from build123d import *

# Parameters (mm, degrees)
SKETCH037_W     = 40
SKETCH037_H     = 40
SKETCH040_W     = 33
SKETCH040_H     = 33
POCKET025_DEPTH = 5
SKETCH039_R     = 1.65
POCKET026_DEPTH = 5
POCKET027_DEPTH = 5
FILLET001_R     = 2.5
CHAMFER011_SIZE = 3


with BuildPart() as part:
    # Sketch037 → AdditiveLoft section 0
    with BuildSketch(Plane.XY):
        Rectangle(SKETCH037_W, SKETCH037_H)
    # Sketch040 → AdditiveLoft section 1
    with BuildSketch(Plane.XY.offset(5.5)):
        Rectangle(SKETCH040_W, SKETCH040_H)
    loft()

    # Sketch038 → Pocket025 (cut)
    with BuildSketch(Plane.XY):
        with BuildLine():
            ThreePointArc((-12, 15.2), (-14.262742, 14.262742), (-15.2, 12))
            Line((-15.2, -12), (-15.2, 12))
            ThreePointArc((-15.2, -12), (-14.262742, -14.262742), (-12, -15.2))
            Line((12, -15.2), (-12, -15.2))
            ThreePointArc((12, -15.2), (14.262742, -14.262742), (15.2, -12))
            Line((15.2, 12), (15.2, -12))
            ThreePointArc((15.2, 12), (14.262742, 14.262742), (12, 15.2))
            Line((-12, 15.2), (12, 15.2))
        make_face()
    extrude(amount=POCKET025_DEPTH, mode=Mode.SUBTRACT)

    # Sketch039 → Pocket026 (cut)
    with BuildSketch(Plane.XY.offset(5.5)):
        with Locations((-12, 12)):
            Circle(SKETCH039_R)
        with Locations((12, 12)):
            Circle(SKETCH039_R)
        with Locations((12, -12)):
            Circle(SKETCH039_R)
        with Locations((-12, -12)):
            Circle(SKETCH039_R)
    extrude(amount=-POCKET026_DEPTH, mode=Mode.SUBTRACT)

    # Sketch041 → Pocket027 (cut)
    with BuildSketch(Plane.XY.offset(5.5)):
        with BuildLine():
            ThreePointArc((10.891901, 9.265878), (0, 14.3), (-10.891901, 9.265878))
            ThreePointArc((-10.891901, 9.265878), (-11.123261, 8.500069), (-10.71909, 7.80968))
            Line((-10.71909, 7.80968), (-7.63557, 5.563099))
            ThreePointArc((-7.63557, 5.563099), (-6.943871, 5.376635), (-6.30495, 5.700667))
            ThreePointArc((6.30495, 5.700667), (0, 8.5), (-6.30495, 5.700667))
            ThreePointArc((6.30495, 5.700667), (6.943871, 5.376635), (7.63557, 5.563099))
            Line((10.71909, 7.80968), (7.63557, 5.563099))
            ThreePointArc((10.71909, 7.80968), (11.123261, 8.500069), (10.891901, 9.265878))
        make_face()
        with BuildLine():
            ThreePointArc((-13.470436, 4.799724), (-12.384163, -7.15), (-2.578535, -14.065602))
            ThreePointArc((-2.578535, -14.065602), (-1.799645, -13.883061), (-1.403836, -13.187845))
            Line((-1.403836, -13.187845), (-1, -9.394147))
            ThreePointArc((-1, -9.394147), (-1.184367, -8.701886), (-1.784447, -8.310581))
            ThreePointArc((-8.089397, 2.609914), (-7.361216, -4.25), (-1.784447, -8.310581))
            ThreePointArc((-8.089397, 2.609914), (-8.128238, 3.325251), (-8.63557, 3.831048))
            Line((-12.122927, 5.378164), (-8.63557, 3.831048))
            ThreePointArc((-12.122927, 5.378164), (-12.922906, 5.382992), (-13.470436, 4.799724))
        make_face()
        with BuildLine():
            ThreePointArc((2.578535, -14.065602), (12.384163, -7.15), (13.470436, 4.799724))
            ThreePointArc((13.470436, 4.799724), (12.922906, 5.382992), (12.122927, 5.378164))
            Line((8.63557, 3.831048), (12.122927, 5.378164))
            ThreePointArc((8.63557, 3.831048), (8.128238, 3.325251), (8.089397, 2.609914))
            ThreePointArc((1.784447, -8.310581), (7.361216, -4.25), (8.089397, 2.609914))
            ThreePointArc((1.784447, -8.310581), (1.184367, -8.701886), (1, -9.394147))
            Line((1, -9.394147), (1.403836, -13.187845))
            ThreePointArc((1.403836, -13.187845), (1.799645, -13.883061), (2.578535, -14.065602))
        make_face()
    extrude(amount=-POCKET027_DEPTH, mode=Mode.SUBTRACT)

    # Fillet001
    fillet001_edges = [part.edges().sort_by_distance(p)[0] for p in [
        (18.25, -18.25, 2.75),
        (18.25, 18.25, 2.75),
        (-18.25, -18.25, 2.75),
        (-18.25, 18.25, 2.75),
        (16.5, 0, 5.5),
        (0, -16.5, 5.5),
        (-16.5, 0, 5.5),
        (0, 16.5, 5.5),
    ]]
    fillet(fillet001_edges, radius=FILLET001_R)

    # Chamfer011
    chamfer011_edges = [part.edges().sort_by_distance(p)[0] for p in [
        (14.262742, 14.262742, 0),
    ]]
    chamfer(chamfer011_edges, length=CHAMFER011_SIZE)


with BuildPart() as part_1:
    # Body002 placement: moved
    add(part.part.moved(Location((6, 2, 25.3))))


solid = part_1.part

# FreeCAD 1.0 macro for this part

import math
import FreeCAD as App
import Part
import Sketcher
from FreeCAD import Vector


def edges_at(feature, points):
    """Names of the edges that pass closest to the given points."""
    edges = feature.Shape.Edges
    near = lambda p: min(range(len(edges)), key=lambda i: edges[i].distToShape(Part.Vertex(*p))[0])
    return sorted({f"Edge{near(p) + 1}" for p in points})


def add_polygon(sketch, points):
    """Adds a closed chain of lines whose ends are joined by coincident constraints."""
    first, n = sketch.GeometryCount, len(points)
    for a, b in zip(points, points[1:] + points[:1]):
        sketch.addGeometry(Part.LineSegment(App.Vector(*a, 0), App.Vector(*b, 0)), False)
    for i in range(n):
        sketch.addConstraint(Sketcher.Constraint("Coincident", first + i, 2, first + (i + 1) % n, 1))

doc = App.newDocument("Part")
body = doc.addObject("PartDesign::Body", "Body")

sketch1 = doc.addObject("Sketcher::SketchObject", "Sketch")
body.addObject(sketch1)
sketch1.AttachmentSupport = (doc.XY_Plane, [""])
sketch1.MapMode = "FlatFace"
add_polygon(sketch1, [(-20, 20), (-20, -20), (20, -20), (20, 20)])
sketch1.addConstraint([
    Sketcher.Constraint("Vertical", 0),
    Sketcher.Constraint("Horizontal", 1),
    Sketcher.Constraint("Vertical", 2),
    Sketcher.Constraint("Horizontal", 3),
    Sketcher.Constraint("Symmetric", 0, 2, 2, 2, -1, 1),
    Sketcher.Constraint("Equal", 3, 0),
    Sketcher.Constraint("DistanceX", 1, 1, 1, 2, 40.0),
])

sketch2 = doc.addObject("Sketcher::SketchObject", "Sketch001")
body.addObject(sketch2)
sketch2.AttachmentSupport = (doc.XY_Plane, [""])
sketch2.MapMode = "FlatFace"
sketch2.AttachmentOffset = App.Placement(Vector(0, 0, 5.5), App.Rotation())
add_polygon(sketch2, [(-16, 16), (-16, -16), (16, -16), (16, 16)])
sketch2.addConstraint([
    Sketcher.Constraint("Vertical", 0),
    Sketcher.Constraint("Horizontal", 1),
    Sketcher.Constraint("Vertical", 2),
    Sketcher.Constraint("Horizontal", 3),
    Sketcher.Constraint("Symmetric", 0, 2, 2, 2, -1, 1),
    Sketcher.Constraint("Equal", 3, 0),
    Sketcher.Constraint("DistanceX", 1, 1, 1, 2, 33.0),
])

additiveloft = doc.addObject("PartDesign::AdditiveLoft", "AdditiveLoft")
body.addObject(additiveloft)
additiveloft.Profile = sketch1
additiveloft.Sections = [sketch2]

sketch3 = doc.addObject("Sketcher::SketchObject", "Sketch002")
body.addObject(sketch3)
sketch3.AttachmentSupport = (doc.XY_Plane, [""])
sketch3.MapMode = "FlatFace"
sketch3.addGeometry([
    Part.ArcOfCircle(Part.Circle(Vector(-12, 12, 0), Vector(0, 0, 1), 3.2), math.radians(90), math.radians(180)),
    Part.LineSegment(Vector(-15.2, 12, 0), Vector(-15.2, -12, 0)),
    Part.ArcOfCircle(Part.Circle(Vector(-12, -12, 0), Vector(0, 0, 1), 3.2), math.radians(180), math.radians(270)),
    Part.LineSegment(Vector(-12, -15.2, 0), Vector(12, -15.2, 0)),
    Part.ArcOfCircle(Part.Circle(Vector(12, -12, 0), Vector(0, 0, 1), 3.2), math.radians(-90), math.radians(0)),
    Part.LineSegment(Vector(15.2, -12, 0), Vector(15.2, 12, 0)),
    Part.ArcOfCircle(Part.Circle(Vector(12, 12, 0), Vector(0, 0, 1), 3.2), math.radians(0), math.radians(90)),
    Part.LineSegment(Vector(12, 15.2, 0), Vector(-12, 15.2, 0)),
], False)
sketch3.addConstraint([
    Sketcher.Constraint("Tangent", 0, 2, 1, 1),
    Sketcher.Constraint("Tangent", 1, 2, 2, 1),
    Sketcher.Constraint("Tangent", 2, 2, 3, 1),
    Sketcher.Constraint("Tangent", 3, 2, 4, 1),
    Sketcher.Constraint("Tangent", 4, 2, 5, 1),
    Sketcher.Constraint("Tangent", 5, 2, 6, 1),
    Sketcher.Constraint("Tangent", 6, 2, 7, 1),
    Sketcher.Constraint("Tangent", 7, 2, 0, 1),
    Sketcher.Constraint("Vertical", 1),
    Sketcher.Constraint("Horizontal", 3),
    Sketcher.Constraint("Vertical", 5),
    Sketcher.Constraint("Horizontal", 7),
    Sketcher.Constraint("Equal", 0, 2),
    Sketcher.Constraint("Equal", 2, 4),
    Sketcher.Constraint("Equal", 4, 6),
    Sketcher.Constraint("Symmetric", 0, 3, 4, 3, -1, 1),
    Sketcher.Constraint("Equal", 7, 1),
    Sketcher.Constraint("Radius", 0, 3.199999),
    Sketcher.Constraint("DistanceX", 3, 1, 3, 2, 24.0),
])
pocket1 = doc.addObject("PartDesign::Pocket", "Pocket")
body.addObject(pocket1)
pocket1.Profile = sketch3
pocket1.Length = 5
pocket1.Reversed = True

sketch4 = doc.addObject("Sketcher::SketchObject", "Sketch003")
body.addObject(sketch4)
sketch4.AttachmentSupport = (doc.XY_Plane, [""])
sketch4.MapMode = "FlatFace"
sketch4.AttachmentOffset = App.Placement(Vector(0, 0, 5.5), App.Rotation())
sketch4.addGeometry([
    Part.Circle(Vector(-12, 12, 0), Vector(0, 0, 1), 1.6),
    Part.Circle(Vector(12, 12, 0), Vector(0, 0, 1), 1.6),
    Part.Circle(Vector(12, -12, 0), Vector(0, 0, 1), 1.6),
    Part.Circle(Vector(-12, -12, 0), Vector(0, 0, 1), 1.6),
], False)
sketch4.addConstraint([
    Sketcher.Constraint("Equal", 0, 1),
    Sketcher.Constraint("Equal", 1, 2),
    Sketcher.Constraint("Equal", 2, 3),
    Sketcher.Constraint("Symmetric", 0, 3, 2, 3, -1, 1),
    Sketcher.Constraint("Symmetric", 1, 3, 3, 3, -1, 1),
    Sketcher.Constraint("Symmetric", 0, 3, 1, 3, -2),
    Sketcher.Constraint("Diameter", 0, 3.3),
    Sketcher.Constraint("DistanceX", 0, 3, -1, 1, 12.0),
    Sketcher.Constraint("DistanceY", -1, 1, 0, 3, 12.0),
])
pocket2 = doc.addObject("PartDesign::Pocket", "Pocket001")
body.addObject(pocket2)
pocket2.Profile = sketch4
pocket2.Length = 5

sketch5 = doc.addObject("Sketcher::SketchObject", "Sketch004")
body.addObject(sketch5)
sketch5.AttachmentSupport = (doc.XY_Plane, [""])
sketch5.MapMode = "FlatFace"
sketch5.AttachmentOffset = App.Placement(Vector(0, 0, 5.5), App.Rotation())
sketch5.addGeometry([
    Part.ArcOfCircle(Part.Circle(Vector(0, 0, 0), Vector(0, 0, 1), 14.3), math.radians(40.388234), math.radians(139.611766)),
    Part.ArcOfCircle(Part.Circle(Vector(-10.130228, 8.617915, 0), Vector(0, 0, 1), 1.000001), math.radians(139.61183), math.radians(233.923759)),
    Part.LineSegment(Vector(-10.71909, 7.80968, 0), Vector(-7.63557, 5.563099, 0)),
    Part.ArcOfCircle(Part.Circle(Vector(-7.046709, 6.371332, 0), Vector(0, 0, 1), 0.999999), math.radians(-126.076259), math.radians(-42.118475)),
    Part.ArcOfCircle(Part.Circle(Vector(0, 0, 0), Vector(0, 0, 1), 8.5), math.radians(42.118542), math.radians(137.881458)),
    Part.ArcOfCircle(Part.Circle(Vector(7.046709, 6.371332, 0), Vector(0, 0, 1), 0.999999), math.radians(-137.881525), math.radians(-53.923741)),
    Part.LineSegment(Vector(7.63557, 5.563099, 0), Vector(10.71909, 7.80968, 0)),
    Part.ArcOfCircle(Part.Circle(Vector(10.130228, 8.617915, 0), Vector(0, 0, 1), 1.000001), math.radians(-53.923759), math.radians(40.38817)),
    Part.ArcOfCircle(Part.Circle(Vector(0.000001, 0, 0), Vector(0, 0, 1), 14.3), math.radians(160.388234), math.radians(259.611765)),
    Part.ArcOfCircle(Part.Circle(Vector(-2.398219, -13.081992, 0), Vector(0, 0, 1), 1.000001), math.radians(-100.388147), math.radians(-6.07631)),
    Part.LineSegment(Vector(-1.403836, -13.187845, 0), Vector(-1, -9.394147, 0)),
    Part.ArcOfCircle(Part.Circle(Vector(-1.99438, -9.288295, 0), Vector(0, 0, 1), 0.999998), math.radians(-6.076287), math.radians(77.881563)),
    Part.ArcOfCircle(Part.Circle(Vector(0, 0, 0), Vector(0, 0, 1), 8.5), math.radians(162.118536), math.radians(257.881458)),
    Part.ArcOfCircle(Part.Circle(Vector(-9.041091, 2.916962, 0), Vector(0, 0, 1), 1), math.radians(-17.88145), math.radians(66.076239)),
    Part.LineSegment(Vector(-8.63557, 3.831048, 0), Vector(-12.122927, 5.378164, 0)),
    Part.ArcOfCircle(Part.Circle(Vector(-12.528448, 4.464078, 0), Vector(0, 0, 1), 1), math.radians(66.076239), math.radians(160.388181)),
    Part.ArcOfCircle(Part.Circle(Vector(-0.000001, 0, 0), Vector(0, 0, 1), 14.3), math.radians(-79.611765), math.radians(19.611766)),
    Part.ArcOfCircle(Part.Circle(Vector(12.528448, 4.464078, 0), Vector(0, 0, 1), 1), math.radians(19.611819), math.radians(113.923761)),
    Part.LineSegment(Vector(12.122927, 5.378164, 0), Vector(8.63557, 3.831048, 0)),
    Part.ArcOfCircle(Part.Circle(Vector(9.041091, 2.916962, 0), Vector(0, 0, 1), 1), math.radians(113.923761), math.radians(197.88145)),
    Part.ArcOfCircle(Part.Circle(Vector(0, 0, 0), Vector(0, 0, 1), 8.5), math.radians(-77.881458), math.radians(17.881464)),
    Part.ArcOfCircle(Part.Circle(Vector(1.99438, -9.288295, 0), Vector(0, 0, 1), 0.999998), math.radians(102.118437), math.radians(186.076287)),
    Part.LineSegment(Vector(1, -9.394147, 0), Vector(1.403836, -13.187845, 0)),
    Part.ArcOfCircle(Part.Circle(Vector(2.398219, -13.081992, 0), Vector(0, 0, 1), 1.000001), math.radians(-173.92369), math.radians(-79.611853)),
], False)
sketch5.addConstraint([
    Sketcher.Constraint("Coincident", 0, 2, 1, 1),
    Sketcher.Constraint("Coincident", 1, 2, 2, 1),
    Sketcher.Constraint("Coincident", 2, 2, 3, 1),
    Sketcher.Constraint("Coincident", 3, 2, 4, 2),
    Sketcher.Constraint("Coincident", 4, 1, 5, 1),
    Sketcher.Constraint("Coincident", 5, 2, 6, 1),
    Sketcher.Constraint("Coincident", 6, 2, 7, 1),
    Sketcher.Constraint("Coincident", 7, 2, 0, 1),
    Sketcher.Constraint("Coincident", 8, 2, 9, 1),
    Sketcher.Constraint("Coincident", 9, 2, 10, 1),
    Sketcher.Constraint("Coincident", 10, 2, 11, 1),
    Sketcher.Constraint("Coincident", 11, 2, 12, 2),
    Sketcher.Constraint("Coincident", 12, 1, 13, 1),
    Sketcher.Constraint("Coincident", 13, 2, 14, 1),
    Sketcher.Constraint("Coincident", 14, 2, 15, 1),
    Sketcher.Constraint("Coincident", 15, 2, 8, 1),
    Sketcher.Constraint("Coincident", 16, 2, 17, 1),
    Sketcher.Constraint("Coincident", 17, 2, 18, 1),
    Sketcher.Constraint("Coincident", 18, 2, 19, 1),
    Sketcher.Constraint("Coincident", 19, 2, 20, 2),
    Sketcher.Constraint("Coincident", 20, 1, 21, 1),
    Sketcher.Constraint("Coincident", 21, 2, 22, 1),
    Sketcher.Constraint("Coincident", 22, 2, 23, 1),
    Sketcher.Constraint("Coincident", 23, 2, 16, 1),
    Sketcher.Constraint("Coincident", 0, 3, -1, 1),
    Sketcher.Constraint("Coincident", 4, 3, -1, 1),
    Sketcher.Constraint("Coincident", 8, 3, -1, 1),
    Sketcher.Constraint("Coincident", 12, 3, -1, 1),
    Sketcher.Constraint("Coincident", 16, 3, -1, 1),
    Sketcher.Constraint("Coincident", 20, 3, -1, 1),
    Sketcher.Constraint("Radius", 1, 1.000001),
    Sketcher.Constraint("Radius", 3, 0.999999),
    Sketcher.Constraint("Radius", 5, 0.999999),
    Sketcher.Constraint("Radius", 7, 1.000001),
    Sketcher.Constraint("Radius", 9, 1.000001),
    Sketcher.Constraint("Radius", 13, 1.0),
    Sketcher.Constraint("Radius", 15, 1.0),
    Sketcher.Constraint("Radius", 17, 1.0),
    Sketcher.Constraint("Radius", 19, 1.0),
    Sketcher.Constraint("Radius", 23, 1.000001),
    Sketcher.Constraint("Radius", 0, 14.3),
    Sketcher.Constraint("Radius", 4, 8.5),
    Sketcher.Constraint("Radius", 8, 14.3),
    Sketcher.Constraint("Radius", 12, 8.5),
    Sketcher.Constraint("Radius", 16, 14.3),
    Sketcher.Constraint("Radius", 20, 8.5),
    Sketcher.Constraint("DistanceX", 10, 2, -1, 1, 1.0),
    Sketcher.Constraint("DistanceX", -1, 1, 21, 2, 1.0),
    Sketcher.Constraint("DistanceX", 13, 2, 2, 2, 1.0),
    Sketcher.Constraint("DistanceX", 5, 2, 18, 2, 1.0),
    Sketcher.Constraint("Radius", 11, 0.999998),
    Sketcher.Constraint("Radius", 21, 0.999998),
    Sketcher.Constraint("DistanceX", 1, 2, 13, 3, 1.677999),
    Sketcher.Constraint("DistanceX", 0, 2, -1, 1, 10.891901),
    Sketcher.Constraint("DistanceY", -1, 1, 2, 2, 5.563099),
    Sketcher.Constraint("DistanceY", -1, 1, 5, 2, 5.563099),
    Sketcher.Constraint("DistanceX", -1, 1, 7, 2, 10.891901),
    Sketcher.Constraint("DistanceY", 8, 2, -1, 1, 14.065602),
    Sketcher.Constraint("DistanceX", 9, 3, 21, 3, 4.392599),
    Sketcher.Constraint("DistanceX", 11, 3, 23, 3, 4.392599),
    Sketcher.Constraint("DistanceY", 15, 3, 0, 2, 4.8018),
    Sketcher.Constraint("DistanceY", 15, 3, 1, 2, 3.345602),
    Sketcher.Constraint("DistanceY", 17, 3, 6, 2, 3.345602),
    Sketcher.Constraint("DistanceY", 6, 2, 7, 2, 1.456198),
    Sketcher.Constraint("DistanceX", 8, 2, 9, 2, 1.174699),
    Sketcher.Constraint("DistanceY", 9, 2, 10, 2, 3.793698),
    Sketcher.Constraint("DistanceX", 14, 2, 1, 3, 1.992699),
    Sketcher.Constraint("DistanceY", 13, 3, 14, 2, 2.461202),
    Sketcher.Constraint("DistanceX", 7, 3, 17, 2, 1.992699),
    Sketcher.Constraint("DistanceY", 19, 3, 17, 2, 2.461202),
    Sketcher.Constraint("DistanceY", 22, 2, 21, 2, 3.793698),
    Sketcher.Constraint("DistanceX", 22, 2, 23, 2, 1.174699),
    Sketcher.Constraint("Distance", 2, 3.815131),
    Sketcher.Constraint("Distance", 6, 3.815131),
    Sketcher.Constraint("Distance", 18, 3.815131),
    Sketcher.Constraint("DistanceX", 9, 3, -1, 1, 2.398219),
    Sketcher.Constraint("DistanceX", 3, 2, -1, 1, 6.30495),
    Sketcher.Constraint("DistanceX", -1, 1, 4, 1, 6.30495),
    Sketcher.Constraint("DistanceY", 11, 2, -1, 1, 8.310581),
    Sketcher.Constraint("DistanceY", 20, 1, -1, 1, 8.310581),
    Sketcher.Constraint("DistanceY", 12, 1, 13, 3, 0.307048),
    Sketcher.Constraint("DistanceX", 15, 2, 15, 3, 0.941988),
    Sketcher.Constraint("DistanceX", 17, 3, 16, 2, 0.941988),
    Sketcher.Constraint("DistanceY", 19, 2, 19, 3, 0.307048),
])
pocket3 = doc.addObject("PartDesign::Pocket", "Pocket002")
body.addObject(pocket3)
pocket3.Profile = sketch5
pocket3.Length = 5
doc.recompute()

fillet = doc.addObject("PartDesign::Fillet", "Fillet")
body.addObject(fillet)
fillet.Base = (pocket3, edges_at(pocket3, [
    (18.25, -18.25, 2.75),
    (18.25, 18.25, 2.75),
    (-18.25, -18.25, 2.75),
    (-18.25, 18.25, 2.75),
    (16.5, 0, 5.5),
    (0, -16.5, 5.5),
    (-16.5, 0, 5.5),
    (0, 16.5, 5.5),
]))
fillet.Radius = 2.5
doc.recompute()

chamfer = doc.addObject("PartDesign::Chamfer", "Chamfer")
body.addObject(chamfer)
chamfer.Base = (fillet, edges_at(fillet, [(14.263, 14.263, 0)]))
chamfer.Size = 3
body2 = doc.addObject("PartDesign::Body", "Body001")
doc.recompute()

body.Placement = App.Placement(Vector(6, 2, 25.3), App.Rotation(Vector(0, 0, 1), 0))
boolean = doc.addObject("PartDesign::Boolean", "Boolean")
body2.addObject(boolean)
boolean.Type = "Fuse"
boolean.addObjects([body])

doc.recompute()
